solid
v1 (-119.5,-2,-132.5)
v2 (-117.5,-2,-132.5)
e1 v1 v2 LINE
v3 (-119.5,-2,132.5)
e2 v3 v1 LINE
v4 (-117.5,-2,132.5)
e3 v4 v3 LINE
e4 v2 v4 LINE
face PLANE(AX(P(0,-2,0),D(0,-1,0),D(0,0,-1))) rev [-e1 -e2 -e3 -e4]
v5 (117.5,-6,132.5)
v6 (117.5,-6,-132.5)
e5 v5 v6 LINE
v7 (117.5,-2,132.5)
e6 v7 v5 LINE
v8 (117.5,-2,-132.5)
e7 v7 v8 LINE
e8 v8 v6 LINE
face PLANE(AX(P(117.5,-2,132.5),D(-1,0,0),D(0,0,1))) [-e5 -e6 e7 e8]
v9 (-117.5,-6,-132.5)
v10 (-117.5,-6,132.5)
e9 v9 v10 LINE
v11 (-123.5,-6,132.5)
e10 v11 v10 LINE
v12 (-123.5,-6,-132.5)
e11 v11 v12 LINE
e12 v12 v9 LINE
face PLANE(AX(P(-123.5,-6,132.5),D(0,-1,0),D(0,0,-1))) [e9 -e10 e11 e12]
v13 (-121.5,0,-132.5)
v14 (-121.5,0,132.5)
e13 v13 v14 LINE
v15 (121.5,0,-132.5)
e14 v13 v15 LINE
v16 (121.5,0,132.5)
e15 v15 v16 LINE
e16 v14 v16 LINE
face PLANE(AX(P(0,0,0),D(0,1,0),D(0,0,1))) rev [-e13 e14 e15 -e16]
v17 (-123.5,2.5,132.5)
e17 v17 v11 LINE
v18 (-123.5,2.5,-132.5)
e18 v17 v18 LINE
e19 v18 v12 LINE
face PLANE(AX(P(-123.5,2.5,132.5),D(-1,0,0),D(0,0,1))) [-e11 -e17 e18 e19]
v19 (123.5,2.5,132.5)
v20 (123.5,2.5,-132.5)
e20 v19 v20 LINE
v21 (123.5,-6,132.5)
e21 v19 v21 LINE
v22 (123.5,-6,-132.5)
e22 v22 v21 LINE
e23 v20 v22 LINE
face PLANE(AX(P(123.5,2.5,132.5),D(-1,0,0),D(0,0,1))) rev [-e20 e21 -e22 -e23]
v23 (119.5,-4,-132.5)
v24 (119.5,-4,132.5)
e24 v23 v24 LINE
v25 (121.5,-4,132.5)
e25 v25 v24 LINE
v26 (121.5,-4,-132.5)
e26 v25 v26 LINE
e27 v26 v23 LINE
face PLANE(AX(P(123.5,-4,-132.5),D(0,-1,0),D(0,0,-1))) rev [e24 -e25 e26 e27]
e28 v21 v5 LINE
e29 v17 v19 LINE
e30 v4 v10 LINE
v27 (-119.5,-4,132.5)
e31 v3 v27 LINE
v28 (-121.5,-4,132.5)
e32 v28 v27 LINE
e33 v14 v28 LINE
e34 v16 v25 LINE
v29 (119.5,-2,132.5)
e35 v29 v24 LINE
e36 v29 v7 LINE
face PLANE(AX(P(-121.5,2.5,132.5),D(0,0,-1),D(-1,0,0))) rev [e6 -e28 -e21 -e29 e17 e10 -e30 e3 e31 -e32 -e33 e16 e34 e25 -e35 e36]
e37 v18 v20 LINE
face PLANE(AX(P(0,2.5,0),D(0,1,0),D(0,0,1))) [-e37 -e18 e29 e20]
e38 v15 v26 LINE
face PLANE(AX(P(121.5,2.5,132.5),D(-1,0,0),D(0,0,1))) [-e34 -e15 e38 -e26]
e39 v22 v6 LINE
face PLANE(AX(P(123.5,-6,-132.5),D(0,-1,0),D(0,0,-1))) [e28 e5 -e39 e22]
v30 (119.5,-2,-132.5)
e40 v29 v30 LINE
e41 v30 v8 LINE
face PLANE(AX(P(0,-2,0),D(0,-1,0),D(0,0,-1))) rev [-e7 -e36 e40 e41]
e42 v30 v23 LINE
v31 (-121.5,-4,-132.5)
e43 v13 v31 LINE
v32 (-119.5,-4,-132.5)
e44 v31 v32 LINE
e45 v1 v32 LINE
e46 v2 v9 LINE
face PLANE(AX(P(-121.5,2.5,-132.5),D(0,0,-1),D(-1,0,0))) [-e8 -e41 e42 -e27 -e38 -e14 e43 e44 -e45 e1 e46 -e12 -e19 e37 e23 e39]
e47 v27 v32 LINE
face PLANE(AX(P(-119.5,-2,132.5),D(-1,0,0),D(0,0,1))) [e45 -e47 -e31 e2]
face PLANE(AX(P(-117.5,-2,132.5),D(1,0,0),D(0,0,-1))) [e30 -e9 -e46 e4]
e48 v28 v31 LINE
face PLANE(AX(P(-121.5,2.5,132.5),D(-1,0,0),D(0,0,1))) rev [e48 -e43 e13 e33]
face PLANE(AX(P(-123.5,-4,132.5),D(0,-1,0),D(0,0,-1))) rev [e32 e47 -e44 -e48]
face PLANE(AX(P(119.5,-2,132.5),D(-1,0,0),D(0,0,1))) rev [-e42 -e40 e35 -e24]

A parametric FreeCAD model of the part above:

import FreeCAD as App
import Part
import Sketcher
from FreeCAD import Vector
Q = App.Units.Quantity


def add_polygon(sketch, points):
    """Adds a closed chain of lines whose ends are joined by coincident constraints."""
    first, n = sketch.GeometryCount, len(points)
    for a, b in zip(points, points[1:] + points[:1]):
        sketch.addGeometry(Part.LineSegment(App.Vector(*a, 0), App.Vector(*b, 0)), False)
    for i in range(n):
        sketch.addConstraint(Sketcher.Constraint("Coincident", first + i, 2, first + (i + 1) % n, 1))

doc = App.newDocument("Part")
params = doc.addObject("Spreadsheet::Sheet", "Params")
for row, (alias, value) in enumerate([
    ("sketch1_width", "243 mm"),
    ("sketch1_height", "265 mm"),
    ("pad1_length", "2.5 mm"),
    ("sketch2_width", "2 mm"),
    ("sketch2_height", "265 mm"),
    ("pad2_length", "4 mm"),
    ("pad2_length2", "2.5 mm"),
    ("sketch3_width", "2 mm"),
    ("sketch3_height", "265 mm"),
    ("pad3_length", "4 mm"),
    ("pad3_length2", "2.5 mm"),
    ("sketch4_width", "2 mm"),
    ("sketch4_height", "265 mm"),
    ("pad4_length", "2 mm"),
    ("pad4_length2", "2 mm"),
    ("sketch5_width", "2 mm"),
    ("sketch5_height", "265 mm"),
    ("pad5_length", "2 mm"),
    ("pad5_length2", "2 mm"),
    ("sketch6_width", "2 mm"),
    ("sketch6_height", "265 mm"),
    ("pad6_length", "4 mm"),
    ("sketch7_width", "2 mm"),
    ("sketch7_height", "265 mm"),
    ("pad7_length", "4 mm"),
], start=1):
    params.set(f"A{row}", alias)
    params.set(f"B{row}", "=" + value)
    params.setAlias(f"B{row}", alias)

body = doc.addObject("PartDesign::Body", "Body")

# Sketch on XZ plane
sketch1 = body.newObject("Sketcher::SketchObject", "Sketch")
sketch1.AttachmentSupport = (doc.getObject("XZ_Plane"), [""])
sketch1.MapMode = "FlatFace"
add_polygon(sketch1, [(-122, -132), (-122, 132), (122, 132), (122, -132)])  # lines 0-3
sketch1.addConstraint([
    Sketcher.Constraint("Vertical", 0),
    Sketcher.Constraint("Horizontal", 1),
    Sketcher.Constraint("Vertical", 2),
    Sketcher.Constraint("Horizontal", 3),
    Sketcher.Constraint("Symmetric", 0, 2, 2, 2, -1, 1),
    Sketcher.Constraint("DistanceX", 1, 1, 1, 2, Q("243 mm")),
    Sketcher.Constraint("DistanceY", 0, 1, 0, 2, Q("265 mm")),
])
sketch1.setExpression("Constraints[9]", "Params.sketch1_width")
sketch1.setExpression("Constraints[10]", "Params.sketch1_height")
pad1 = body.newObject("PartDesign::Pad", "Pad")
pad1.Profile = sketch1
pad1.setExpression("Length", "Params.pad1_length")
pad1.Reversed = True

# Sketch on XZ plane
sketch2 = body.newObject("Sketcher::SketchObject", "Sketch001")
sketch2.AttachmentSupport = (doc.getObject("XZ_Plane"), [""])
sketch2.MapMode = "FlatFace"
add_polygon(sketch2, [(121.5, 132.5), (121.5, -132.5), (123.5, -132.5), (123.5, 132.5)])  # lines 0-3
sketch2.addConstraint([
    Sketcher.Constraint("Vertical", 0),
    Sketcher.Constraint("Horizontal", 1),
    Sketcher.Constraint("Vertical", 2),
    Sketcher.Constraint("Horizontal", 3),
    Sketcher.Constraint("DistanceX", 1, 1, 1, 2, Q("2 mm")),
    Sketcher.Constraint("DistanceY", 0, 2, 0, 1, Q("265 mm")),
    Sketcher.Constraint("DistanceX", -1, 1, 0, 2, Q("121.5 mm")),
    Sketcher.Constraint("DistanceY", 0, 2, -1, 1, Q("132.5 mm")),
])
sketch2.setExpression("Constraints[8]", "Params.sketch2_width")
sketch2.setExpression("Constraints[9]", "Params.sketch2_height")
pad2 = body.newObject("PartDesign::Pad", "Pad001")
pad2.Profile = sketch2
pad2.Type = "TwoLengths"
pad2.setExpression("Length", "Params.pad2_length")
pad2.setExpression("Length2", "Params.pad2_length2")

# Sketch on XZ plane
sketch3 = body.newObject("Sketcher::SketchObject", "Sketch002")
sketch3.AttachmentSupport = (doc.getObject("XZ_Plane"), [""])
sketch3.MapMode = "FlatFace"
add_polygon(sketch3, [(-123.5, 132.5), (-123.5, -132.5), (-121.5, -132.5), (-121.5, 132.5)])  # lines 0-3
sketch3.addConstraint([
    Sketcher.Constraint("Vertical", 0),
    Sketcher.Constraint("Horizontal", 1),
    Sketcher.Constraint("Vertical", 2),
    Sketcher.Constraint("Horizontal", 3),
    Sketcher.Constraint("DistanceX", 1, 1, 1, 2, Q("2 mm")),
    Sketcher.Constraint("DistanceY", 0, 2, 0, 1, Q("265 mm")),
    Sketcher.Constraint("DistanceX", 0, 2, -1, 1, Q("123.5 mm")),
    Sketcher.Constraint("DistanceY", 0, 2, -1, 1, Q("132.5 mm")),
])
sketch3.setExpression("Constraints[8]", "Params.sketch3_width")
sketch3.setExpression("Constraints[9]", "Params.sketch3_height")
pad3 = body.newObject("PartDesign::Pad", "Pad002")
pad3.Profile = sketch3
pad3.Type = "TwoLengths"
pad3.setExpression("Length", "Params.pad3_length")
pad3.setExpression("Length2", "Params.pad3_length2")

# Sketch on YZ plane
sketch4 = body.newObject("Sketcher::SketchObject", "Sketch003")
sketch4.AttachmentSupport = (doc.getObject("YZ_Plane"), [""])
sketch4.MapMode = "FlatFace"
sketch4.AttachmentOffset = App.Placement(Vector(0, 0, -121.5), App.Rotation())
add_polygon(sketch4, [(-4, 132.5), (-6, 132.5), (-6, -132.5), (-4, -132.5)])  # lines 0-3
sketch4.addConstraint([
    Sketcher.Constraint("Horizontal", 0),
    Sketcher.Constraint("Vertical", 1),
    Sketcher.Constraint("Horizontal", 2),
    Sketcher.Constraint("Vertical", 3),
    Sketcher.Constraint("DistanceX", 0, 2, 0, 1, Q("2 mm")),
    Sketcher.Constraint("DistanceY", 1, 2, 1, 1, Q("265 mm")),
    Sketcher.Constraint("DistanceX", 0, 2, -1, 1, Q("6 mm")),
    Sketcher.Constraint("DistanceY", -1, 1, 0, 2, Q("132.5 mm")),
])
sketch4.setExpression("Constraints[8]", "Params.sketch4_width")
sketch4.setExpression("Constraints[9]", "Params.sketch4_height")
pad4 = body.newObject("PartDesign::Pad", "Pad003")
pad4.Profile = sketch4
pad4.Type = "TwoLengths"
pad4.setExpression("Length", "Params.pad4_length")
pad4.setExpression("Length2", "Params.pad4_length2")

# Sketch on YZ plane
sketch5 = body.newObject("Sketcher::SketchObject", "Sketch004")
sketch5.AttachmentSupport = (doc.getObject("YZ_Plane"), [""])
sketch5.MapMode = "FlatFace"
sketch5.AttachmentOffset = App.Placement(Vector(0, 0, 121.5), App.Rotation())
add_polygon(sketch5, [(-4, -132.5), (-6, -132.5), (-6, 132.5), (-4, 132.5)])  # lines 0-3
sketch5.addConstraint([
    Sketcher.Constraint("Horizontal", 0),
    Sketcher.Constraint("Vertical", 1),
    Sketcher.Constraint("Horizontal", 2),
    Sketcher.Constraint("Vertical", 3),
    Sketcher.Constraint("DistanceX", 0, 2, 0, 1, Q("2 mm")),
    Sketcher.Constraint("DistanceY", 1, 1, 1, 2, Q("265 mm")),
    Sketcher.Constraint("DistanceX", 0, 2, -1, 1, Q("6 mm")),
    Sketcher.Constraint("DistanceY", 0, 2, -1, 1, Q("132.5 mm")),
])
sketch5.setExpression("Constraints[8]", "Params.sketch5_width")
sketch5.setExpression("Constraints[9]", "Params.sketch5_height")
pad5 = body.newObject("PartDesign::Pad", "Pad004")
pad5.Profile = sketch5
pad5.Type = "TwoLengths"
pad5.setExpression("Length", "Params.pad5_length")
pad5.setExpression("Length2", "Params.pad5_length2")
pad5.Reversed = True

# Sketch on XZ plane
sketch6 = body.newObject("Sketcher::SketchObject", "Sketch005")
sketch6.AttachmentSupport = (doc.getObject("XZ_Plane"), [""])
sketch6.MapMode = "FlatFace"
sketch6.AttachmentOffset = App.Placement(Vector(0, 0, 6), App.Rotation())
add_polygon(sketch6, [(117.5, 132.5), (117.5, -132.5), (119.5, -132.5), (119.5, 132.5)])  # lines 0-3
sketch6.addConstraint([
    Sketcher.Constraint("Vertical", 0),
    Sketcher.Constraint("Horizontal", 1),
    Sketcher.Constraint("Vertical", 2),
    Sketcher.Constraint("Horizontal", 3),
    Sketcher.Constraint("DistanceX", 1, 1, 1, 2, Q("2 mm")),
    Sketcher.Constraint("DistanceY", 0, 2, 0, 1, Q("265 mm")),
    Sketcher.Constraint("DistanceX", -1, 1, 0, 2, Q("117.5 mm")),
    Sketcher.Constraint("DistanceY", 0, 2, -1, 1, Q("132.5 mm")),
])
sketch6.setExpression("Constraints[8]", "Params.sketch6_width")
sketch6.setExpression("Constraints[9]", "Params.sketch6_height")
pad6 = body.newObject("PartDesign::Pad", "Pad005")
pad6.Profile = sketch6
pad6.setExpression("Length", "Params.pad6_length")
pad6.Reversed = True

# Sketch on XZ plane
sketch7 = body.newObject("Sketcher::SketchObject", "Sketch006")
sketch7.AttachmentSupport = (doc.getObject("XZ_Plane"), [""])
sketch7.MapMode = "FlatFace"
sketch7.AttachmentOffset = App.Placement(Vector(0, 0, 6), App.Rotation())
add_polygon(sketch7, [(-119.5, 132.5), (-119.5, -132.5), (-117.5, -132.5), (-117.5, 132.5)])  # lines 0-3
sketch7.addConstraint([
    Sketcher.Constraint("Vertical", 0),
    Sketcher.Constraint("Horizontal", 1),
    Sketcher.Constraint("Vertical", 2),
    Sketcher.Constraint("Horizontal", 3),
    Sketcher.Constraint("DistanceX", 1, 1, 1, 2, Q("2 mm")),
    Sketcher.Constraint("DistanceY", 0, 2, 0, 1, Q("265 mm")),
    Sketcher.Constraint("DistanceX", 0, 2, -1, 1, Q("119.5 mm")),
    Sketcher.Constraint("DistanceY", 0, 2, -1, 1, Q("132.5 mm")),
])
sketch7.setExpression("Constraints[8]", "Params.sketch7_width")
sketch7.setExpression("Constraints[9]", "Params.sketch7_height")
pad7 = body.newObject("PartDesign::Pad", "Pad006")
pad7.Profile = sketch7
pad7.setExpression("Length", "Params.pad7_length")
pad7.Reversed = True

doc.recompute()
